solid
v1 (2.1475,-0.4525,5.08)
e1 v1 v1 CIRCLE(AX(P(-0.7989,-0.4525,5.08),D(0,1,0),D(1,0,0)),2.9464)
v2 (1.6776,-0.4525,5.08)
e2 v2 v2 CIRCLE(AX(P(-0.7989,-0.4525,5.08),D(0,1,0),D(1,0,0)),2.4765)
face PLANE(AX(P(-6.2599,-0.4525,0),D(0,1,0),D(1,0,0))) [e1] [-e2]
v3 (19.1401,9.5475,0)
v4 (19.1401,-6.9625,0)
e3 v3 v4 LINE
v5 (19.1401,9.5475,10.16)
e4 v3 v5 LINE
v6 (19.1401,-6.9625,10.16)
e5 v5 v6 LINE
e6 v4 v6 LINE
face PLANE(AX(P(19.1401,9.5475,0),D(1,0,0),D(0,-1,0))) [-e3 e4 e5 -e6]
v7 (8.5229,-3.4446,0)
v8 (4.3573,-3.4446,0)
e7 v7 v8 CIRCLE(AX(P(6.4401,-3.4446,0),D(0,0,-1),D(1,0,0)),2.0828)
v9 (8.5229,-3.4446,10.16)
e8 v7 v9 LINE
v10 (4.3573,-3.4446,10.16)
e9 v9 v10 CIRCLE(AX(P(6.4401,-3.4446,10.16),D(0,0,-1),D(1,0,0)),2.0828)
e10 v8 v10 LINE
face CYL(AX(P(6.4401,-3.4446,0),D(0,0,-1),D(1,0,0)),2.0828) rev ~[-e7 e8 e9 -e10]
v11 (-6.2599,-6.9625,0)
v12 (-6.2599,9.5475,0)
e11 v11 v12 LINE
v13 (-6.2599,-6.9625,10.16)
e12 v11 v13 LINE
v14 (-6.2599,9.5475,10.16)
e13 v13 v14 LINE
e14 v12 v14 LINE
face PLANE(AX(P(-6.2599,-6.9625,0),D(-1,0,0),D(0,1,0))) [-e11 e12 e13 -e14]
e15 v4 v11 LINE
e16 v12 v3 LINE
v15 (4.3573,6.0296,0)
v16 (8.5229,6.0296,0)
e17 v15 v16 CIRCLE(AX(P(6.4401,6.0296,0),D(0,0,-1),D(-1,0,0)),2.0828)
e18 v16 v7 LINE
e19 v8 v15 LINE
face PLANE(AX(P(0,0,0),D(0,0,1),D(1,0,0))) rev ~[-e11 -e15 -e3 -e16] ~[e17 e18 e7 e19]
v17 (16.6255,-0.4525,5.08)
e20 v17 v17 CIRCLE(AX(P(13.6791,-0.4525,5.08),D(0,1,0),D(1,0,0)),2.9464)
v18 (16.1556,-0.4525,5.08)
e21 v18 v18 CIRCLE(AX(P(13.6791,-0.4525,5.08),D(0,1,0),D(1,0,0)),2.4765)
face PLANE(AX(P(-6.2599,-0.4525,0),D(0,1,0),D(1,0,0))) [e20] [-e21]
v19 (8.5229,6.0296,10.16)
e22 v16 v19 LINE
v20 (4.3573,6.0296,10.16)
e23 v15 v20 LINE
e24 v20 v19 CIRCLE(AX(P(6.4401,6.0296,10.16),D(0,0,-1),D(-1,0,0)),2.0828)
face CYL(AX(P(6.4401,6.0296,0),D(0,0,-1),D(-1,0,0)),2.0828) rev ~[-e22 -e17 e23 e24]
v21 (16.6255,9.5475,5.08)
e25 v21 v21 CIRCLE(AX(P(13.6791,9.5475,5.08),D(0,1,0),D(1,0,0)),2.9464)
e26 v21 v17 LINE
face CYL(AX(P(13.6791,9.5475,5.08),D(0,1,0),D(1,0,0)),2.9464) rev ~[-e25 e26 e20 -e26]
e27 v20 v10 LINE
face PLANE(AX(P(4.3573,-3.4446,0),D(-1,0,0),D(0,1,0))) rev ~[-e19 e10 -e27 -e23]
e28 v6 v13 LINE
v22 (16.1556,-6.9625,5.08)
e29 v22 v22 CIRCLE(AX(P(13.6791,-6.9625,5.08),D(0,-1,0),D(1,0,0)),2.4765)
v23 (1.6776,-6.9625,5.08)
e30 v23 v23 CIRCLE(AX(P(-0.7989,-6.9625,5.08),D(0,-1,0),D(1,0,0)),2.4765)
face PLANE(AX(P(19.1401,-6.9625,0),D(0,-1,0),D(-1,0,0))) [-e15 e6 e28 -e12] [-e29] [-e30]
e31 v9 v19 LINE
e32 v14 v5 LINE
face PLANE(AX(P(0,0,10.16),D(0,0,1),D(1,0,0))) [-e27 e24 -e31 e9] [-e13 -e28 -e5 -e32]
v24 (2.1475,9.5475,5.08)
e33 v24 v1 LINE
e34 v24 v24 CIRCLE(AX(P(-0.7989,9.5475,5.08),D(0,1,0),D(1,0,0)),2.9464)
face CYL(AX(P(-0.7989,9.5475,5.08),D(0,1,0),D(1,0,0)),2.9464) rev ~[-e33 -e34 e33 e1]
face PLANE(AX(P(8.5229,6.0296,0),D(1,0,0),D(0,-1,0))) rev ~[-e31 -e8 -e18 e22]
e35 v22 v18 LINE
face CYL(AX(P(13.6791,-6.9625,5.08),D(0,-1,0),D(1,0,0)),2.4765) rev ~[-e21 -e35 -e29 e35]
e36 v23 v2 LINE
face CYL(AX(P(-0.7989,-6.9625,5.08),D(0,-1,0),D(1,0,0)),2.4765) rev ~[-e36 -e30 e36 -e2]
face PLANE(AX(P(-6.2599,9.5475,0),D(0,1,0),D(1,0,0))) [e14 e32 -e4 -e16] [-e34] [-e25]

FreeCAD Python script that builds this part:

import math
import FreeCAD as App
import Part
import Sketcher

V = App.Vector
Q = App.Units.Quantity


def add_polygon(sketch, points):
    """Adds a closed chain of lines whose ends are joined by coincident constraints."""
    first, n = sketch.GeometryCount, len(points)
    for a, b in zip(points, points[1:] + points[:1]):
        sketch.addGeometry(Part.LineSegment(App.Vector(*a, 0), App.Vector(*b, 0)), False)
    for i in range(n):
        sketch.addConstraint(Sketcher.Constraint("Coincident", first + i, 2, first + (i + 1) % n, 1))

doc = App.newDocument("Part")
body = doc.addObject("PartDesign::Body", "Body")
body.AllowCompound = True

sketch1 = doc.addObject("Sketcher::SketchObject", "Sketch")
body.addObject(sketch1)
sketch1.AttachmentSupport = (doc.XY_Plane, [""])
sketch1.MapMode = "FlatFace"
add_polygon(sketch1, [(19.1401, 9.5475), (-6.2599, 9.5475), (-6.2599, -6.9625), (19.1401, -6.9625)])
sketch1.addConstraint(Sketcher.Constraint("Horizontal", 0))
sketch1.addConstraint(Sketcher.Constraint("Vertical", 1))
sketch1.addConstraint(Sketcher.Constraint("Horizontal", 2))
sketch1.addConstraint(Sketcher.Constraint("Vertical", 3))
sketch1.addConstraint(Sketcher.Constraint("DistanceX", 0, 2, 0, 1, Q("1 in")))
sketch1.addConstraint(Sketcher.Constraint("DistanceY", 1, 2, 1, 1, Q("0.65 in")))
sketch1.addConstraint(Sketcher.Constraint("DistanceX", 0, 2, -1, 1, 6.26))
sketch1.addConstraint(Sketcher.Constraint("DistanceY", -1, 1, 0, 2, 9.5475))
pad1 = doc.addObject("PartDesign::Pad", "Pad")
body.addObject(pad1)
pad1.Profile = sketch1
pad1.Length = Q("0.4 in")

sketch2 = doc.addObject("Sketcher::SketchObject", "Sketch001")
body.addObject(sketch2)
sketch2.AttachmentSupport = (doc.XZ_Plane, [""])
sketch2.MapMode = "FlatFace"
sketch2.AttachmentOffset = App.Placement(V(0, 0, 6.9625), App.Rotation())
sketch2.addGeometry(Part.Circle(V(-0.7989, 5.08, 0), V(0, 0, 1), 2.4765), False)
sketch2.addGeometry(Part.Circle(V(13.6791, 5.08, 0), V(0, 0, 1), 2.4765), False)
sketch2.addConstraint(Sketcher.Constraint("Equal", 0, 1))
sketch2.addConstraint(Sketcher.Constraint("Horizontal", 0, 3, 1, 3))
sketch2.addConstraint(Sketcher.Constraint("Diameter", 0, Q("0.195 in")))
sketch2.addConstraint(Sketcher.Constraint("DistanceY", -1, 1, 0, 3, Q("0.2 in")))
sketch2.addConstraint(Sketcher.Constraint("DistanceX", 0, 3, 1, 3, Q("0.57 in")))
sketch2.addConstraint(Sketcher.Constraint("DistanceX", 0, 3, -1, 1, 0.799))
pocket1 = doc.addObject("PartDesign::Pocket", "Pocket")
body.addObject(pocket1)
pocket1.Profile = sketch2
pocket1.Length = 14

sketch3 = doc.addObject("Sketcher::SketchObject", "Sketch002")
body.addObject(sketch3)
sketch3.AttachmentSupport = (doc.XZ_Plane, [""])
sketch3.MapMode = "FlatFace"
sketch3.AttachmentOffset = App.Placement(V(0, 0, -9.5475), App.Rotation())
sketch3.addGeometry(Part.Circle(V(-0.7989, 5.08, 0), V(0, 0, 1), 2.9464), False)
sketch3.addGeometry(Part.Circle(V(-0.7989, 5.08, 0), V(0, 0, 1), 2.4765), False)
sketch3.addGeometry(Part.Circle(V(13.6791, 5.08, 0), V(0, 0, 1), 2.9464), False)
sketch3.addGeometry(Part.Circle(V(13.6791, 5.08, 0), V(0, 0, 1), 2.4765), False)
sketch3.addConstraint(Sketcher.Constraint("Coincident", 1, 3, 0, 3))
sketch3.addConstraint(Sketcher.Constraint("Coincident", 3, 3, 2, 3))
sketch3.addConstraint(Sketcher.Constraint("Equal", 0, 2))
sketch3.addConstraint(Sketcher.Constraint("Equal", 1, 3))
sketch3.addConstraint(Sketcher.Constraint("Horizontal", 1, 3, 2, 3))
sketch3.addConstraint(Sketcher.Constraint("Diameter", 0, Q("0.232 in")))
sketch3.addConstraint(Sketcher.Constraint("Diameter", 1, Q("0.195 in")))
sketch3.addConstraint(Sketcher.Constraint("DistanceY", -1, 1, 0, 3, Q("0.2 in")))
sketch3.addConstraint(Sketcher.Constraint("DistanceX", 0, 3, 2, 3, Q("0.57 in")))
sketch3.addConstraint(Sketcher.Constraint("DistanceX", 0, 3, -1, 1, 0.799))
pocket2 = doc.addObject("PartDesign::Pocket", "Pocket001")
body.addObject(pocket2)
pocket2.Profile = sketch3
pocket2.Length = Q("0.3937008 in")
pocket2.Reversed = True

sketch4 = doc.addObject("Sketcher::SketchObject", "Sketch003")
body.addObject(sketch4)
sketch4.AttachmentSupport = (doc.XY_Plane, [""])
sketch4.MapMode = "FlatFace"
sketch4.addGeometry(Part.ArcOfCircle(Part.Circle(V(6.4401, 6.0296, 0), V(0, 0, 1), 2.0828), math.radians(0), math.radians(180)), False)
sketch4.addGeometry(Part.LineSegment(V(8.5229, 6.0296, 0), V(8.5229, -3.4446, 0)), False)
sketch4.addGeometry(Part.ArcOfCircle(Part.Circle(V(6.4401, -3.4446, 0), V(0, 0, 1), 2.0828), math.radians(180), math.radians(360)), False)
sketch4.addGeometry(Part.LineSegment(V(4.3573, -3.4446, 0), V(4.3573, 6.0296, 0)), False)
sketch4.addConstraint(Sketcher.Constraint("Tangent", 0, 1, 1, 1))
sketch4.addConstraint(Sketcher.Constraint("Tangent", 1, 2, 2, 2))
sketch4.addConstraint(Sketcher.Constraint("Tangent", 2, 1, 3, 1))
sketch4.addConstraint(Sketcher.Constraint("Tangent", 3, 2, 0, 2))
sketch4.addConstraint(Sketcher.Constraint("Vertical", 1))
sketch4.addConstraint(Sketcher.Constraint("Vertical", 3))
sketch4.addConstraint(Sketcher.Constraint("Radius", 0, Q("0.082 in")))
sketch4.addConstraint(Sketcher.Constraint("DistanceY", 1, 2, 1, 1, Q("0.373 in")))
sketch4.addConstraint(Sketcher.Constraint("DistanceX", -1, 1, 0, 3, 6.44))
sketch4.addConstraint(Sketcher.Constraint("DistanceY", -1, 1, 0, 3, 6.0296))
pocket3 = doc.addObject("PartDesign::Pocket", "Pocket002")
body.addObject(pocket3)
pocket3.Profile = sketch4
pocket3.Type = "ThroughAll"
pocket3.Reversed = True

sketch5 = doc.addObject("Sketcher::SketchObject", "Sketch004")
body.addObject(sketch5)
sketch5.AttachmentSupport = (doc.XZ_Plane, [""])
sketch5.MapMode = "FlatFace"
sketch5.AttachmentOffset = App.Placement(V(0, 0, -9.5475), App.Rotation())
sketch5.addGeometry(Part.Circle(V(-0.7989, 5.08, 0), V(0, 0, 1), 2.4765), False)
sketch5.addGeometry(Part.Circle(V(13.6791, 5.08, 0), V(0, 0, 1), 2.4765), False)
sketch5.addConstraint(Sketcher.Constraint("Equal", 0, 1))
sketch5.addConstraint(Sketcher.Constraint("Horizontal", 0, 3, 1, 3))
sketch5.addConstraint(Sketcher.Constraint("Diameter", 0, Q("0.195 in")))
sketch5.addConstraint(Sketcher.Constraint("DistanceY", -1, 1, 0, 3, Q("0.2 in")))
sketch5.addConstraint(Sketcher.Constraint("DistanceX", 0, 3, 1, 3, Q("0.57 in")))
sketch5.addConstraint(Sketcher.Constraint("DistanceX", 0, 3, -1, 1, 0.799))
pocket4 = doc.addObject("PartDesign::Pocket", "Pocket003")
body.addObject(pocket4)
pocket4.Profile = sketch5
pocket4.Length = 2.51
pocket4.Reversed = True

doc.recompute()
